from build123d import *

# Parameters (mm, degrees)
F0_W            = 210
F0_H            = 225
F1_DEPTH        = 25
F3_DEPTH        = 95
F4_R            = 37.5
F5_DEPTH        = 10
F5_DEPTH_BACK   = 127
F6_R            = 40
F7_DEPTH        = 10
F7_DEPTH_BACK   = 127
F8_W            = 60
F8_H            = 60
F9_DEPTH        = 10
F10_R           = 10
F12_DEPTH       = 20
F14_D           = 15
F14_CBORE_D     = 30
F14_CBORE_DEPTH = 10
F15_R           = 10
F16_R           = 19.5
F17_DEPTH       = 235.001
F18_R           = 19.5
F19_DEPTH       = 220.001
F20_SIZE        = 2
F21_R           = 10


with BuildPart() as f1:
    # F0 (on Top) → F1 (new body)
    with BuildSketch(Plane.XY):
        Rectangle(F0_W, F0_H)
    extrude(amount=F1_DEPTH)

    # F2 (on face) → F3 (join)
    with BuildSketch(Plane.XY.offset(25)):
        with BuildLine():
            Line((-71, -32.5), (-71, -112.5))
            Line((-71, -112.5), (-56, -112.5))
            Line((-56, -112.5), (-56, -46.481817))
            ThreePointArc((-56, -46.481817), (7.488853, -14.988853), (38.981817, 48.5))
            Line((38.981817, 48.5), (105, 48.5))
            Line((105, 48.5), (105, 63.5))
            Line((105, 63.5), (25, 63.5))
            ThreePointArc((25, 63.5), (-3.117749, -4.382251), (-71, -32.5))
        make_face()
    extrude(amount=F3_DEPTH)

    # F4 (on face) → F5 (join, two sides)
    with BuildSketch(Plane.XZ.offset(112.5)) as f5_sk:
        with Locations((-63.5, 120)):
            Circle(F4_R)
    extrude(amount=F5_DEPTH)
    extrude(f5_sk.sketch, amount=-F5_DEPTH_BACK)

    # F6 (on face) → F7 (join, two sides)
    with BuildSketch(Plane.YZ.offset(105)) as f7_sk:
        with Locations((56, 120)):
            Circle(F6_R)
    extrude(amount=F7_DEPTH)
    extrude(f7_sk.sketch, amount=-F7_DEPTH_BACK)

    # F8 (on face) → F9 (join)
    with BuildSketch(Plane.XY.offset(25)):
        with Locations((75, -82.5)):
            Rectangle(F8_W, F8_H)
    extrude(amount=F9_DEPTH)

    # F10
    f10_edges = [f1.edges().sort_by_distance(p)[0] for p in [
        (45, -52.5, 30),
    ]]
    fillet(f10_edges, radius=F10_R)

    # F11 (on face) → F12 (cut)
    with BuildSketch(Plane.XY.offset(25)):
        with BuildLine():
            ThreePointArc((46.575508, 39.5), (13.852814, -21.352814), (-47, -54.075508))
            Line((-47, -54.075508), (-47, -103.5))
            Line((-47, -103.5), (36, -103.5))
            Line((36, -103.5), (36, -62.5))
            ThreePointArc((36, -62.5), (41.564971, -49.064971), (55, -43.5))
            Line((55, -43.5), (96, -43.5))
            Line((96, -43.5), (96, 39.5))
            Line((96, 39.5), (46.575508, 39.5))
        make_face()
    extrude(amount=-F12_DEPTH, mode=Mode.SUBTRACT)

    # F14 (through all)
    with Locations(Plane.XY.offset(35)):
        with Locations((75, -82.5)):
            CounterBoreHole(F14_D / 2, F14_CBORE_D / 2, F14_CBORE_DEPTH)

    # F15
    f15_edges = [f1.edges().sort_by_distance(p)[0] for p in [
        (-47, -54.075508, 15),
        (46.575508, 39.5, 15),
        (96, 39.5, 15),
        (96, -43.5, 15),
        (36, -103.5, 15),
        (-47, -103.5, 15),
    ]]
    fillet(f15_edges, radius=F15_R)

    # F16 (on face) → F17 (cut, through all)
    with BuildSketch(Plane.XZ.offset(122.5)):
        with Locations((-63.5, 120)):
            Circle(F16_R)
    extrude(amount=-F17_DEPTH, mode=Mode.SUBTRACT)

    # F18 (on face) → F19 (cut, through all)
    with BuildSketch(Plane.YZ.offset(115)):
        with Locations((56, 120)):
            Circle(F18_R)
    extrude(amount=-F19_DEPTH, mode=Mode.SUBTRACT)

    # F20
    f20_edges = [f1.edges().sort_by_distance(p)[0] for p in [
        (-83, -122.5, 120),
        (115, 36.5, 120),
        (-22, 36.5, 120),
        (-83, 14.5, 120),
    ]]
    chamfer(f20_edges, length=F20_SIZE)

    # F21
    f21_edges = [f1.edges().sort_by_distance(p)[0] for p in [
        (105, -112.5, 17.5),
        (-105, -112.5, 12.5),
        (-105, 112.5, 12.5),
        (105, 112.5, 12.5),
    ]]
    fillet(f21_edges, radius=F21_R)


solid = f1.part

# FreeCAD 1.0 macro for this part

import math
import FreeCAD as App
import Part
import Sketcher
Q = App.Units.Quantity


def edges_at(feature, points):
    """Names of the edges that pass closest to the given points."""
    edges = feature.Shape.Edges
    near = lambda p: min(range(len(edges)), key=lambda i: edges[i].distToShape(Part.Vertex(*p))[0])
    return sorted({f"Edge{near(p) + 1}" for p in points})

doc = App.newDocument("Part")
body = doc.addObject("PartDesign::Body", "Body")

# Sketch on XY plane
sketch1 = body.newObject("Sketcher::SketchObject", "Sketch")
sketch1.AttachmentSupport = (doc.getObject("XY_Plane"), [""])
sketch1.MapMode = "FlatFace"
sketch1.addGeometry(Part.LineSegment(App.Vector(-105, 112.5, 0), App.Vector(-105, -112.5, 0)), False)
sketch1.addGeometry(Part.LineSegment(App.Vector(-105, -112.5, 0), App.Vector(105, -112.5, 0)), False)
sketch1.addGeometry(Part.LineSegment(App.Vector(105, -112.5, 0), App.Vector(105, 112.5, 0)), False)
sketch1.addGeometry(Part.LineSegment(App.Vector(105, 112.5, 0), App.Vector(-105, 112.5, 0)), False)
sketch1.addConstraint(Sketcher.Constraint("Coincident", 0, 2, 1, 1))
sketch1.addConstraint(Sketcher.Constraint("Coincident", 1, 2, 2, 1))
sketch1.addConstraint(Sketcher.Constraint("Coincident", 2, 2, 3, 1))
sketch1.addConstraint(Sketcher.Constraint("Coincident", 3, 2, 0, 1))
sketch1.addConstraint(Sketcher.Constraint("Vertical", 0))
sketch1.addConstraint(Sketcher.Constraint("Horizontal", 1))
sketch1.addConstraint(Sketcher.Constraint("Vertical", 2))
sketch1.addConstraint(Sketcher.Constraint("Horizontal", 3))
sketch1.addConstraint(Sketcher.Constraint("Symmetric", 0, 2, 2, 2, -1, 1))
sketch1.addConstraint(Sketcher.Constraint("DistanceX", 1, 1, 1, 2, Q("210 mm")))
sketch1.addConstraint(Sketcher.Constraint("DistanceY", 0, 2, 0, 1, Q("225 mm")))
pad1 = body.newObject("PartDesign::Pad", "Pad")
pad1.Profile = sketch1
pad1.Length = 25

# Sketch on XY plane
sketch2 = body.newObject("Sketcher::SketchObject", "Sketch001")
sketch2.AttachmentSupport = (doc.getObject("XY_Plane"), [""])
sketch2.MapMode = "FlatFace"
sketch2.AttachmentOffset = App.Placement(App.Vector(0, 0, 25), App.Rotation())
sketch2.addGeometry(Part.LineSegment(App.Vector(-71, -32.5, 0), App.Vector(-71, -112.5, 0)), False)
sketch2.addGeometry(Part.LineSegment(App.Vector(-71, -112.5, 0), App.Vector(-56, -112.5, 0)), False)
sketch2.addGeometry(Part.LineSegment(App.Vector(-56, -112.5, 0), App.Vector(-56, -46.481817, 0)), False)
sketch2.addGeometry(Part.ArcOfCircle(Part.Circle(App.Vector(-71, 63.5, 0), App.Vector(0, 0, 1), 111), math.radians(-82.233566), math.radians(-7.766434)), False)
sketch2.addGeometry(Part.LineSegment(App.Vector(38.981817, 48.5, 0), App.Vector(105, 48.5, 0)), False)
sketch2.addGeometry(Part.LineSegment(App.Vector(105, 48.5, 0), App.Vector(105, 63.5, 0)), False)
sketch2.addGeometry(Part.LineSegment(App.Vector(105, 63.5, 0), App.Vector(25, 63.5, 0)), False)
sketch2.addGeometry(Part.ArcOfCircle(Part.Circle(App.Vector(-71, 63.5, 0), App.Vector(0, 0, 1), 96), math.radians(-90), math.radians(0)), False)
sketch2.addConstraint(Sketcher.Constraint("Coincident", 0, 2, 1, 1))
sketch2.addConstraint(Sketcher.Constraint("Coincident", 1, 2, 2, 1))
sketch2.addConstraint(Sketcher.Constraint("Coincident", 2, 2, 3, 1))
sketch2.addConstraint(Sketcher.Constraint("Coincident", 3, 2, 4, 1))
sketch2.addConstraint(Sketcher.Constraint("Coincident", 4, 2, 5, 1))
sketch2.addConstraint(Sketcher.Constraint("Coincident", 5, 2, 6, 1))
sketch2.addConstraint(Sketcher.Constraint("Coincident", 6, 2, 7, 2))
sketch2.addConstraint(Sketcher.Constraint("Coincident", 7, 1, 0, 1))
sketch2.addConstraint(Sketcher.Constraint("Vertical", 0))
sketch2.addConstraint(Sketcher.Constraint("Horizontal", 1))
sketch2.addConstraint(Sketcher.Constraint("Vertical", 2))
sketch2.addConstraint(Sketcher.Constraint("Horizontal", 4))
sketch2.addConstraint(Sketcher.Constraint("Vertical", 5))
sketch2.addConstraint(Sketcher.Constraint("Horizontal", 6))
sketch2.addConstraint(Sketcher.Constraint("Coincident", 7, 3, 3, 3))
sketch2.addConstraint(Sketcher.Constraint("Horizontal", 7, 3, 5, 2))
sketch2.addConstraint(Sketcher.Constraint("Vertical", 7, 3, 0, 2))
sketch2.addConstraint(Sketcher.Constraint("Equal", 6, 0))
sketch2.addConstraint(Sketcher.Constraint("Equal", 4, 2))
sketch2.addConstraint(Sketcher.Constraint("Radius", 3, Q("111 mm")))
sketch2.addConstraint(Sketcher.Constraint("Radius", 7, Q("96 mm")))
sketch2.addConstraint(Sketcher.Constraint("DistanceX", 1, 1, 1, 2, Q("15 mm")))
sketch2.addConstraint(Sketcher.Constraint("DistanceX", 6, 2, 6, 1, Q("80 mm")))
sketch2.addConstraint(Sketcher.Constraint("DistanceX", 3, 3, -1, 1, Q("71 mm")))
sketch2.addConstraint(Sketcher.Constraint("DistanceY", -1, 1, 3, 3, Q("63.5 mm")))
pad2 = body.newObject("PartDesign::Pad", "Pad001")
pad2.Profile = sketch2
pad2.Length = 95

# Sketch on XZ plane
sketch3 = body.newObject("Sketcher::SketchObject", "Sketch002")
sketch3.AttachmentSupport = (doc.getObject("XZ_Plane"), [""])
sketch3.MapMode = "FlatFace"
sketch3.AttachmentOffset = App.Placement(App.Vector(0, 0, 112.5), App.Rotation())
sketch3.addGeometry(Part.Circle(App.Vector(-63.5, 120, 0), App.Vector(0, 0, 1), 37.5), False)
sketch3.addConstraint(Sketcher.Constraint("Diameter", 0, Q("75 mm")))
sketch3.addConstraint(Sketcher.Constraint("DistanceY", -1, 1, 0, 3, Q("120 mm")))
sketch3.addConstraint(Sketcher.Constraint("DistanceX", 0, 3, -1, 1, Q("63.5 mm")))
pad3 = body.newObject("PartDesign::Pad", "Pad002")
pad3.Profile = sketch3
pad3.Type = "TwoLengths"
pad3.Length = 10
pad3.Length2 = 127

# Sketch on YZ plane
sketch4 = body.newObject("Sketcher::SketchObject", "Sketch003")
sketch4.AttachmentSupport = (doc.getObject("YZ_Plane"), [""])
sketch4.MapMode = "FlatFace"
sketch4.AttachmentOffset = App.Placement(App.Vector(0, 0, 105), App.Rotation())
sketch4.addGeometry(Part.Circle(App.Vector(56, 120, 0), App.Vector(0, 0, 1), 40), False)
sketch4.addConstraint(Sketcher.Constraint("Diameter", 0, Q("80 mm")))
sketch4.addConstraint(Sketcher.Constraint("DistanceX", -1, 1, 0, 3, Q("56 mm")))
sketch4.addConstraint(Sketcher.Constraint("DistanceY", -1, 1, 0, 3, Q("120 mm")))
pad4 = body.newObject("PartDesign::Pad", "Pad003")
pad4.Profile = sketch4
pad4.Type = "TwoLengths"
pad4.Length = 10
pad4.Length2 = 127

# Sketch on XY plane
sketch5 = body.newObject("Sketcher::SketchObject", "Sketch004")
sketch5.AttachmentSupport = (doc.getObject("XY_Plane"), [""])
sketch5.MapMode = "FlatFace"
sketch5.AttachmentOffset = App.Placement(App.Vector(0, 0, 25), App.Rotation())
sketch5.addGeometry(Part.LineSegment(App.Vector(45, -52.5, 0), App.Vector(45, -112.5, 0)), False)
sketch5.addGeometry(Part.LineSegment(App.Vector(45, -112.5, 0), App.Vector(105, -112.5, 0)), False)
sketch5.addGeometry(Part.LineSegment(App.Vector(105, -112.5, 0), App.Vector(105, -52.5, 0)), False)
sketch5.addGeometry(Part.LineSegment(App.Vector(105, -52.5, 0), App.Vector(45, -52.5, 0)), False)
sketch5.addConstraint(Sketcher.Constraint("Coincident", 0, 2, 1, 1))
sketch5.addConstraint(Sketcher.Constraint("Coincident", 1, 2, 2, 1))
sketch5.addConstraint(Sketcher.Constraint("Coincident", 2, 2, 3, 1))
sketch5.addConstraint(Sketcher.Constraint("Coincident", 3, 2, 0, 1))
sketch5.addConstraint(Sketcher.Constraint("Vertical", 0))
sketch5.addConstraint(Sketcher.Constraint("Horizontal", 1))
sketch5.addConstraint(Sketcher.Constraint("Vertical", 2))
sketch5.addConstraint(Sketcher.Constraint("Horizontal", 3))
sketch5.addConstraint(Sketcher.Constraint("Equal", 3, 0))
sketch5.addConstraint(Sketcher.Constraint("DistanceX", 1, 1, 1, 2, Q("60 mm")))
sketch5.addConstraint(Sketcher.Constraint("DistanceX", -1, 1, 0, 2, Q("45 mm")))
sketch5.addConstraint(Sketcher.Constraint("DistanceY", 0, 2, -1, 1, Q("112.5 mm")))
pad5 = body.newObject("PartDesign::Pad", "Pad004")
pad5.Profile = sketch5
pad5.Length = 10
doc.recompute()

fillet = body.newObject("PartDesign::Fillet", "Fillet")
fillet.Base = (pad5, edges_at(pad5, [(45, -52.5, 30)]))
fillet.Radius = 10

# Sketch on XY plane
sketch6 = body.newObject("Sketcher::SketchObject", "Sketch005")
sketch6.AttachmentSupport = (doc.getObject("XY_Plane"), [""])
sketch6.MapMode = "FlatFace"
sketch6.AttachmentOffset = App.Placement(App.Vector(0, 0, 25), App.Rotation())
sketch6.addGeometry(Part.ArcOfCircle(Part.Circle(App.Vector(-71, 63.5, 0), App.Vector(0, 0, 1), 120), math.radians(-78.463041), math.radians(-11.536959)), False)
sketch6.addGeometry(Part.LineSegment(App.Vector(-47, -54.075508, 0), App.Vector(-47, -103.5, 0)), False)
sketch6.addGeometry(Part.LineSegment(App.Vector(-47, -103.5, 0), App.Vector(36, -103.5, 0)), False)
sketch6.addGeometry(Part.LineSegment(App.Vector(36, -103.5, 0), App.Vector(36, -62.5, 0)), False)
sketch6.addGeometry(Part.ArcOfCircle(Part.Circle(App.Vector(54.999999, -62.499999, 0), App.Vector(0, 0, 1), 18.999999), math.radians(89.999998), math.radians(180.000002)), False)
sketch6.addGeometry(Part.LineSegment(App.Vector(55, -43.5, 0), App.Vector(96, -43.5, 0)), False)
sketch6.addGeometry(Part.LineSegment(App.Vector(96, -43.5, 0), App.Vector(96, 39.5, 0)), False)
sketch6.addGeometry(Part.LineSegment(App.Vector(96, 39.5, 0), App.Vector(46.575508, 39.5, 0)), False)
sketch6.addConstraint(Sketcher.Constraint("Coincident", 0, 1, 1, 1))
sketch6.addConstraint(Sketcher.Constraint("Coincident", 1, 2, 2, 1))
sketch6.addConstraint(Sketcher.Constraint("Coincident", 2, 2, 3, 1))
sketch6.addConstraint(Sketcher.Constraint("Tangent", 3, 2, 4, 2))
sketch6.addConstraint(Sketcher.Constraint("Tangent", 4, 1, 5, 1))
sketch6.addConstraint(Sketcher.Constraint("Coincident", 5, 2, 6, 1))
sketch6.addConstraint(Sketcher.Constraint("Coincident", 6, 2, 7, 1))
sketch6.addConstraint(Sketcher.Constraint("Coincident", 7, 2, 0, 2))
sketch6.addConstraint(Sketcher.Constraint("Vertical", 1))
sketch6.addConstraint(Sketcher.Constraint("Horizontal", 2))
sketch6.addConstraint(Sketcher.Constraint("Vertical", 3))
sketch6.addConstraint(Sketcher.Constraint("Horizontal", 5))
sketch6.addConstraint(Sketcher.Constraint("Vertical", 6))
sketch6.addConstraint(Sketcher.Constraint("Horizontal", 7))
sketch6.addConstraint(Sketcher.Constraint("Equal", 7, 1))
sketch6.addConstraint(Sketcher.Constraint("Equal", 5, 3))
sketch6.addConstraint(Sketcher.Constraint("Equal", 2, 6))
sketch6.addConstraint(Sketcher.Constraint("Radius", 0, Q("120 mm")))
sketch6.addConstraint(Sketcher.Constraint("Radius", 4, Q("18.999999 mm")))
sketch6.addConstraint(Sketcher.Constraint("DistanceX", 2, 1, 2, 2, Q("83 mm")))
sketch6.addConstraint(Sketcher.Constraint("DistanceX", 5, 1, 5, 2, Q("41 mm")))
sketch6.addConstraint(Sketcher.Constraint("DistanceX", 0, 3, -1, 1, Q("71 mm")))
sketch6.addConstraint(Sketcher.Constraint("DistanceX", -1, 1, 4, 3, Q("54.999999 mm")))
sketch6.addConstraint(Sketcher.Constraint("DistanceY", -1, 1, 0, 3, Q("63.5 mm")))
pocket1 = body.newObject("PartDesign::Pocket", "Pocket")
pocket1.Profile = sketch6
pocket1.Length = 20

# Sketch on XY plane
sketch7 = body.newObject("Sketcher::SketchObject", "Sketch006")
sketch7.AttachmentSupport = (doc.getObject("XY_Plane"), [""])
sketch7.MapMode = "FlatFace"
sketch7.AttachmentOffset = App.Placement(App.Vector(0, 0, 35), App.Rotation())
sketch7.addGeometry(Part.Circle(App.Vector(75, -82.5, 0), App.Vector(0, 0, 1), 7.5), False)
sketch7.addConstraint(Sketcher.Constraint("Diameter", 0, Q("15 mm")))
sketch7.addConstraint(Sketcher.Constraint("DistanceX", -1, 1, 0, 3, Q("75 mm")))
sketch7.addConstraint(Sketcher.Constraint("DistanceY", 0, 3, -1, 1, Q("82.5 mm")))
doc.recompute()
hole = body.newObject("PartDesign::Hole", "Hole")
hole.Profile = sketch7
hole.ThreadType = "None"
hole.Diameter = 15
hole.DepthType = "ThroughAll"
hole.HoleCutType = "Counterbore"
hole.HoleCutDiameter = 30
hole.HoleCutDepth = 10
doc.recompute()

fillet2 = body.newObject("PartDesign::Fillet", "Fillet001")
fillet2.Base = (hole, edges_at(hole, [
    (-47, -54.076, 15),
    (46.576, 39.5, 15),
    (96, 39.5, 15),
    (96, -43.5, 15),
    (36, -103.5, 15),
    (-47, -103.5, 15),
]))
fillet2.Radius = 10

# Sketch on XZ plane
sketch8 = body.newObject("Sketcher::SketchObject", "Sketch007")
sketch8.AttachmentSupport = (doc.getObject("XZ_Plane"), [""])
sketch8.MapMode = "FlatFace"
sketch8.AttachmentOffset = App.Placement(App.Vector(0, 0, 122.5), App.Rotation())
sketch8.addGeometry(Part.Circle(App.Vector(-63.5, 120, 0), App.Vector(0, 0, 1), 19.5), False)
sketch8.addConstraint(Sketcher.Constraint("Diameter", 0, Q("39 mm")))
sketch8.addConstraint(Sketcher.Constraint("DistanceY", -1, 1, 0, 3, Q("120 mm")))
sketch8.addConstraint(Sketcher.Constraint("DistanceX", 0, 3, -1, 1, Q("63.5 mm")))
pocket2 = body.newObject("PartDesign::Pocket", "Pocket001")
pocket2.Profile = sketch8
pocket2.Type = "ThroughAll"

# Sketch on YZ plane
sketch9 = body.newObject("Sketcher::SketchObject", "Sketch008")
sketch9.AttachmentSupport = (doc.getObject("YZ_Plane"), [""])
sketch9.MapMode = "FlatFace"
sketch9.AttachmentOffset = App.Placement(App.Vector(0, 0, 115), App.Rotation())
sketch9.addGeometry(Part.Circle(App.Vector(56, 120, 0), App.Vector(0, 0, 1), 19.5), False)
sketch9.addConstraint(Sketcher.Constraint("Diameter", 0, Q("39 mm")))
sketch9.addConstraint(Sketcher.Constraint("DistanceX", -1, 1, 0, 3, Q("56 mm")))
sketch9.addConstraint(Sketcher.Constraint("DistanceY", -1, 1, 0, 3, Q("120 mm")))
pocket3 = body.newObject("PartDesign::Pocket", "Pocket002")
pocket3.Profile = sketch9
pocket3.Type = "ThroughAll"
doc.recompute()

chamfer = body.newObject("PartDesign::Chamfer", "Chamfer")
chamfer.Base = (pocket3, edges_at(pocket3, [
    (-83, -122.5, 120),
    (115, 36.5, 120),
    (-22, 36.5, 120),
    (-83, 14.5, 120),
]))
chamfer.Size = 2
doc.recompute()

fillet3 = body.newObject("PartDesign::Fillet", "Fillet002")
fillet3.Base = (chamfer, edges_at(chamfer, [
    (105, -112.5, 17.5),
    (-105, -112.5, 12.5),
    (-105, 112.5, 12.5),
    (105, 112.5, 12.5),
]))
fillet3.Radius = 10

doc.recompute()
